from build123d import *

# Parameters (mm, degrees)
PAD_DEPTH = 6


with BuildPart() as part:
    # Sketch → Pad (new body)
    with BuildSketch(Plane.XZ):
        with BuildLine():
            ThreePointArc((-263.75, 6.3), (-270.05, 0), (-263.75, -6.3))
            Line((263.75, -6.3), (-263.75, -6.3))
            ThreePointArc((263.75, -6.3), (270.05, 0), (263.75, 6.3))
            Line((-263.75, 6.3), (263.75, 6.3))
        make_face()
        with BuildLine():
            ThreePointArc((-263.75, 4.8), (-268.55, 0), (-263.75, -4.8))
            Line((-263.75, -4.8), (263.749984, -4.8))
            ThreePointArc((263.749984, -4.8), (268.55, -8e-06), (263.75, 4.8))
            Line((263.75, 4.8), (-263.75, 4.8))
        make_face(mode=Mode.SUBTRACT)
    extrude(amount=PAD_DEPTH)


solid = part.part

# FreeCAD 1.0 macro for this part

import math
import FreeCAD as App
import Part
import Sketcher

doc = App.newDocument("Part")
body = doc.addObject("PartDesign::Body", "Body")

# Sketch on XZ plane
sketch1 = body.newObject("Sketcher::SketchObject", "Sketch")
sketch1.AttachmentSupport = (doc.getObject("XZ_Plane"), [""])
sketch1.MapMode = "FlatFace"
sketch1.addGeometry(Part.ArcOfCircle(Part.Circle(App.Vector(-263.8, 0, 0), App.Vector(0, 0, 1), 6.3), math.radians(90), math.radians(270)), False)
sketch1.addGeometry(Part.LineSegment(App.Vector(-263.8, -6.3, 0), App.Vector(263.8, -6.3, 0)), False)
sketch1.addGeometry(Part.ArcOfCircle(Part.Circle(App.Vector(263.8, 0, 0), App.Vector(0, 0, 1), 6.3), math.radians(-90), math.radians(90)), False)
sketch1.addGeometry(Part.LineSegment(App.Vector(263.8, 6.3, 0), App.Vector(-263.8, 6.3, 0)), False)
sketch1.addGeometry(Part.ArcOfCircle(Part.Circle(App.Vector(-263.8, 0, 0), App.Vector(0, 0, 1), 4.8), math.radians(90), math.radians(270)), False)
sketch1.addGeometry(Part.LineSegment(App.Vector(-263.8, 4.8, 0), App.Vector(263.8, 4.8, 0)), False)
sketch1.addGeometry(Part.ArcOfCircle(Part.Circle(App.Vector(263.8, 0, 0), App.Vector(0, 0, 1), 4.8), math.radians(-90), math.radians(90)), False)
sketch1.addGeometry(Part.LineSegment(App.Vector(263.7, -4.8, 0), App.Vector(-263.8, -4.8, 0)), False)
sketch1.addConstraint(Sketcher.Constraint("Tangent", 0, 2, 1, 1))
sketch1.addConstraint(Sketcher.Constraint("Tangent", 1, 2, 2, 1))
sketch1.addConstraint(Sketcher.Constraint("Tangent", 2, 2, 3, 1))
sketch1.addConstraint(Sketcher.Constraint("Tangent", 3, 2, 0, 1))
sketch1.addConstraint(Sketcher.Constraint("Tangent", 4, 1, 5, 1))
sketch1.addConstraint(Sketcher.Constraint("Tangent", 5, 2, 6, 2))
sketch1.addConstraint(Sketcher.Constraint("Coincident", 6, 1, 7, 1))
sketch1.addConstraint(Sketcher.Constraint("Tangent", 7, 2, 4, 2))
sketch1.addConstraint(Sketcher.Constraint("Horizontal", 1))
sketch1.addConstraint(Sketcher.Constraint("Horizontal", 3))
sketch1.addConstraint(Sketcher.Constraint("Horizontal", 5))
sketch1.addConstraint(Sketcher.Constraint("Horizontal", 7))
sketch1.addConstraint(Sketcher.Constraint("Coincident", 4, 3, 0, 3))
sketch1.addConstraint(Sketcher.Constraint("Symmetric", 0, 3, 2, 3, -1, 1))
sketch1.addConstraint(Sketcher.Constraint("Vertical", 6, 3, 1, 2))
sketch1.addConstraint(Sketcher.Constraint("Radius", 0, 6.3))
sketch1.addConstraint(Sketcher.Constraint("Radius", 4, 4.8))
sketch1.addConstraint(Sketcher.Constraint("DistanceX", 1, 1, 1, 2, 527.5))
sketch1.addConstraint(Sketcher.Constraint("DistanceX", 7, 2, 7, 1, 527.499984))
pad1 = body.newObject("PartDesign::Pad", "Pad")
pad1.Profile = sketch1
pad1.Length = 6

doc.recompute()
